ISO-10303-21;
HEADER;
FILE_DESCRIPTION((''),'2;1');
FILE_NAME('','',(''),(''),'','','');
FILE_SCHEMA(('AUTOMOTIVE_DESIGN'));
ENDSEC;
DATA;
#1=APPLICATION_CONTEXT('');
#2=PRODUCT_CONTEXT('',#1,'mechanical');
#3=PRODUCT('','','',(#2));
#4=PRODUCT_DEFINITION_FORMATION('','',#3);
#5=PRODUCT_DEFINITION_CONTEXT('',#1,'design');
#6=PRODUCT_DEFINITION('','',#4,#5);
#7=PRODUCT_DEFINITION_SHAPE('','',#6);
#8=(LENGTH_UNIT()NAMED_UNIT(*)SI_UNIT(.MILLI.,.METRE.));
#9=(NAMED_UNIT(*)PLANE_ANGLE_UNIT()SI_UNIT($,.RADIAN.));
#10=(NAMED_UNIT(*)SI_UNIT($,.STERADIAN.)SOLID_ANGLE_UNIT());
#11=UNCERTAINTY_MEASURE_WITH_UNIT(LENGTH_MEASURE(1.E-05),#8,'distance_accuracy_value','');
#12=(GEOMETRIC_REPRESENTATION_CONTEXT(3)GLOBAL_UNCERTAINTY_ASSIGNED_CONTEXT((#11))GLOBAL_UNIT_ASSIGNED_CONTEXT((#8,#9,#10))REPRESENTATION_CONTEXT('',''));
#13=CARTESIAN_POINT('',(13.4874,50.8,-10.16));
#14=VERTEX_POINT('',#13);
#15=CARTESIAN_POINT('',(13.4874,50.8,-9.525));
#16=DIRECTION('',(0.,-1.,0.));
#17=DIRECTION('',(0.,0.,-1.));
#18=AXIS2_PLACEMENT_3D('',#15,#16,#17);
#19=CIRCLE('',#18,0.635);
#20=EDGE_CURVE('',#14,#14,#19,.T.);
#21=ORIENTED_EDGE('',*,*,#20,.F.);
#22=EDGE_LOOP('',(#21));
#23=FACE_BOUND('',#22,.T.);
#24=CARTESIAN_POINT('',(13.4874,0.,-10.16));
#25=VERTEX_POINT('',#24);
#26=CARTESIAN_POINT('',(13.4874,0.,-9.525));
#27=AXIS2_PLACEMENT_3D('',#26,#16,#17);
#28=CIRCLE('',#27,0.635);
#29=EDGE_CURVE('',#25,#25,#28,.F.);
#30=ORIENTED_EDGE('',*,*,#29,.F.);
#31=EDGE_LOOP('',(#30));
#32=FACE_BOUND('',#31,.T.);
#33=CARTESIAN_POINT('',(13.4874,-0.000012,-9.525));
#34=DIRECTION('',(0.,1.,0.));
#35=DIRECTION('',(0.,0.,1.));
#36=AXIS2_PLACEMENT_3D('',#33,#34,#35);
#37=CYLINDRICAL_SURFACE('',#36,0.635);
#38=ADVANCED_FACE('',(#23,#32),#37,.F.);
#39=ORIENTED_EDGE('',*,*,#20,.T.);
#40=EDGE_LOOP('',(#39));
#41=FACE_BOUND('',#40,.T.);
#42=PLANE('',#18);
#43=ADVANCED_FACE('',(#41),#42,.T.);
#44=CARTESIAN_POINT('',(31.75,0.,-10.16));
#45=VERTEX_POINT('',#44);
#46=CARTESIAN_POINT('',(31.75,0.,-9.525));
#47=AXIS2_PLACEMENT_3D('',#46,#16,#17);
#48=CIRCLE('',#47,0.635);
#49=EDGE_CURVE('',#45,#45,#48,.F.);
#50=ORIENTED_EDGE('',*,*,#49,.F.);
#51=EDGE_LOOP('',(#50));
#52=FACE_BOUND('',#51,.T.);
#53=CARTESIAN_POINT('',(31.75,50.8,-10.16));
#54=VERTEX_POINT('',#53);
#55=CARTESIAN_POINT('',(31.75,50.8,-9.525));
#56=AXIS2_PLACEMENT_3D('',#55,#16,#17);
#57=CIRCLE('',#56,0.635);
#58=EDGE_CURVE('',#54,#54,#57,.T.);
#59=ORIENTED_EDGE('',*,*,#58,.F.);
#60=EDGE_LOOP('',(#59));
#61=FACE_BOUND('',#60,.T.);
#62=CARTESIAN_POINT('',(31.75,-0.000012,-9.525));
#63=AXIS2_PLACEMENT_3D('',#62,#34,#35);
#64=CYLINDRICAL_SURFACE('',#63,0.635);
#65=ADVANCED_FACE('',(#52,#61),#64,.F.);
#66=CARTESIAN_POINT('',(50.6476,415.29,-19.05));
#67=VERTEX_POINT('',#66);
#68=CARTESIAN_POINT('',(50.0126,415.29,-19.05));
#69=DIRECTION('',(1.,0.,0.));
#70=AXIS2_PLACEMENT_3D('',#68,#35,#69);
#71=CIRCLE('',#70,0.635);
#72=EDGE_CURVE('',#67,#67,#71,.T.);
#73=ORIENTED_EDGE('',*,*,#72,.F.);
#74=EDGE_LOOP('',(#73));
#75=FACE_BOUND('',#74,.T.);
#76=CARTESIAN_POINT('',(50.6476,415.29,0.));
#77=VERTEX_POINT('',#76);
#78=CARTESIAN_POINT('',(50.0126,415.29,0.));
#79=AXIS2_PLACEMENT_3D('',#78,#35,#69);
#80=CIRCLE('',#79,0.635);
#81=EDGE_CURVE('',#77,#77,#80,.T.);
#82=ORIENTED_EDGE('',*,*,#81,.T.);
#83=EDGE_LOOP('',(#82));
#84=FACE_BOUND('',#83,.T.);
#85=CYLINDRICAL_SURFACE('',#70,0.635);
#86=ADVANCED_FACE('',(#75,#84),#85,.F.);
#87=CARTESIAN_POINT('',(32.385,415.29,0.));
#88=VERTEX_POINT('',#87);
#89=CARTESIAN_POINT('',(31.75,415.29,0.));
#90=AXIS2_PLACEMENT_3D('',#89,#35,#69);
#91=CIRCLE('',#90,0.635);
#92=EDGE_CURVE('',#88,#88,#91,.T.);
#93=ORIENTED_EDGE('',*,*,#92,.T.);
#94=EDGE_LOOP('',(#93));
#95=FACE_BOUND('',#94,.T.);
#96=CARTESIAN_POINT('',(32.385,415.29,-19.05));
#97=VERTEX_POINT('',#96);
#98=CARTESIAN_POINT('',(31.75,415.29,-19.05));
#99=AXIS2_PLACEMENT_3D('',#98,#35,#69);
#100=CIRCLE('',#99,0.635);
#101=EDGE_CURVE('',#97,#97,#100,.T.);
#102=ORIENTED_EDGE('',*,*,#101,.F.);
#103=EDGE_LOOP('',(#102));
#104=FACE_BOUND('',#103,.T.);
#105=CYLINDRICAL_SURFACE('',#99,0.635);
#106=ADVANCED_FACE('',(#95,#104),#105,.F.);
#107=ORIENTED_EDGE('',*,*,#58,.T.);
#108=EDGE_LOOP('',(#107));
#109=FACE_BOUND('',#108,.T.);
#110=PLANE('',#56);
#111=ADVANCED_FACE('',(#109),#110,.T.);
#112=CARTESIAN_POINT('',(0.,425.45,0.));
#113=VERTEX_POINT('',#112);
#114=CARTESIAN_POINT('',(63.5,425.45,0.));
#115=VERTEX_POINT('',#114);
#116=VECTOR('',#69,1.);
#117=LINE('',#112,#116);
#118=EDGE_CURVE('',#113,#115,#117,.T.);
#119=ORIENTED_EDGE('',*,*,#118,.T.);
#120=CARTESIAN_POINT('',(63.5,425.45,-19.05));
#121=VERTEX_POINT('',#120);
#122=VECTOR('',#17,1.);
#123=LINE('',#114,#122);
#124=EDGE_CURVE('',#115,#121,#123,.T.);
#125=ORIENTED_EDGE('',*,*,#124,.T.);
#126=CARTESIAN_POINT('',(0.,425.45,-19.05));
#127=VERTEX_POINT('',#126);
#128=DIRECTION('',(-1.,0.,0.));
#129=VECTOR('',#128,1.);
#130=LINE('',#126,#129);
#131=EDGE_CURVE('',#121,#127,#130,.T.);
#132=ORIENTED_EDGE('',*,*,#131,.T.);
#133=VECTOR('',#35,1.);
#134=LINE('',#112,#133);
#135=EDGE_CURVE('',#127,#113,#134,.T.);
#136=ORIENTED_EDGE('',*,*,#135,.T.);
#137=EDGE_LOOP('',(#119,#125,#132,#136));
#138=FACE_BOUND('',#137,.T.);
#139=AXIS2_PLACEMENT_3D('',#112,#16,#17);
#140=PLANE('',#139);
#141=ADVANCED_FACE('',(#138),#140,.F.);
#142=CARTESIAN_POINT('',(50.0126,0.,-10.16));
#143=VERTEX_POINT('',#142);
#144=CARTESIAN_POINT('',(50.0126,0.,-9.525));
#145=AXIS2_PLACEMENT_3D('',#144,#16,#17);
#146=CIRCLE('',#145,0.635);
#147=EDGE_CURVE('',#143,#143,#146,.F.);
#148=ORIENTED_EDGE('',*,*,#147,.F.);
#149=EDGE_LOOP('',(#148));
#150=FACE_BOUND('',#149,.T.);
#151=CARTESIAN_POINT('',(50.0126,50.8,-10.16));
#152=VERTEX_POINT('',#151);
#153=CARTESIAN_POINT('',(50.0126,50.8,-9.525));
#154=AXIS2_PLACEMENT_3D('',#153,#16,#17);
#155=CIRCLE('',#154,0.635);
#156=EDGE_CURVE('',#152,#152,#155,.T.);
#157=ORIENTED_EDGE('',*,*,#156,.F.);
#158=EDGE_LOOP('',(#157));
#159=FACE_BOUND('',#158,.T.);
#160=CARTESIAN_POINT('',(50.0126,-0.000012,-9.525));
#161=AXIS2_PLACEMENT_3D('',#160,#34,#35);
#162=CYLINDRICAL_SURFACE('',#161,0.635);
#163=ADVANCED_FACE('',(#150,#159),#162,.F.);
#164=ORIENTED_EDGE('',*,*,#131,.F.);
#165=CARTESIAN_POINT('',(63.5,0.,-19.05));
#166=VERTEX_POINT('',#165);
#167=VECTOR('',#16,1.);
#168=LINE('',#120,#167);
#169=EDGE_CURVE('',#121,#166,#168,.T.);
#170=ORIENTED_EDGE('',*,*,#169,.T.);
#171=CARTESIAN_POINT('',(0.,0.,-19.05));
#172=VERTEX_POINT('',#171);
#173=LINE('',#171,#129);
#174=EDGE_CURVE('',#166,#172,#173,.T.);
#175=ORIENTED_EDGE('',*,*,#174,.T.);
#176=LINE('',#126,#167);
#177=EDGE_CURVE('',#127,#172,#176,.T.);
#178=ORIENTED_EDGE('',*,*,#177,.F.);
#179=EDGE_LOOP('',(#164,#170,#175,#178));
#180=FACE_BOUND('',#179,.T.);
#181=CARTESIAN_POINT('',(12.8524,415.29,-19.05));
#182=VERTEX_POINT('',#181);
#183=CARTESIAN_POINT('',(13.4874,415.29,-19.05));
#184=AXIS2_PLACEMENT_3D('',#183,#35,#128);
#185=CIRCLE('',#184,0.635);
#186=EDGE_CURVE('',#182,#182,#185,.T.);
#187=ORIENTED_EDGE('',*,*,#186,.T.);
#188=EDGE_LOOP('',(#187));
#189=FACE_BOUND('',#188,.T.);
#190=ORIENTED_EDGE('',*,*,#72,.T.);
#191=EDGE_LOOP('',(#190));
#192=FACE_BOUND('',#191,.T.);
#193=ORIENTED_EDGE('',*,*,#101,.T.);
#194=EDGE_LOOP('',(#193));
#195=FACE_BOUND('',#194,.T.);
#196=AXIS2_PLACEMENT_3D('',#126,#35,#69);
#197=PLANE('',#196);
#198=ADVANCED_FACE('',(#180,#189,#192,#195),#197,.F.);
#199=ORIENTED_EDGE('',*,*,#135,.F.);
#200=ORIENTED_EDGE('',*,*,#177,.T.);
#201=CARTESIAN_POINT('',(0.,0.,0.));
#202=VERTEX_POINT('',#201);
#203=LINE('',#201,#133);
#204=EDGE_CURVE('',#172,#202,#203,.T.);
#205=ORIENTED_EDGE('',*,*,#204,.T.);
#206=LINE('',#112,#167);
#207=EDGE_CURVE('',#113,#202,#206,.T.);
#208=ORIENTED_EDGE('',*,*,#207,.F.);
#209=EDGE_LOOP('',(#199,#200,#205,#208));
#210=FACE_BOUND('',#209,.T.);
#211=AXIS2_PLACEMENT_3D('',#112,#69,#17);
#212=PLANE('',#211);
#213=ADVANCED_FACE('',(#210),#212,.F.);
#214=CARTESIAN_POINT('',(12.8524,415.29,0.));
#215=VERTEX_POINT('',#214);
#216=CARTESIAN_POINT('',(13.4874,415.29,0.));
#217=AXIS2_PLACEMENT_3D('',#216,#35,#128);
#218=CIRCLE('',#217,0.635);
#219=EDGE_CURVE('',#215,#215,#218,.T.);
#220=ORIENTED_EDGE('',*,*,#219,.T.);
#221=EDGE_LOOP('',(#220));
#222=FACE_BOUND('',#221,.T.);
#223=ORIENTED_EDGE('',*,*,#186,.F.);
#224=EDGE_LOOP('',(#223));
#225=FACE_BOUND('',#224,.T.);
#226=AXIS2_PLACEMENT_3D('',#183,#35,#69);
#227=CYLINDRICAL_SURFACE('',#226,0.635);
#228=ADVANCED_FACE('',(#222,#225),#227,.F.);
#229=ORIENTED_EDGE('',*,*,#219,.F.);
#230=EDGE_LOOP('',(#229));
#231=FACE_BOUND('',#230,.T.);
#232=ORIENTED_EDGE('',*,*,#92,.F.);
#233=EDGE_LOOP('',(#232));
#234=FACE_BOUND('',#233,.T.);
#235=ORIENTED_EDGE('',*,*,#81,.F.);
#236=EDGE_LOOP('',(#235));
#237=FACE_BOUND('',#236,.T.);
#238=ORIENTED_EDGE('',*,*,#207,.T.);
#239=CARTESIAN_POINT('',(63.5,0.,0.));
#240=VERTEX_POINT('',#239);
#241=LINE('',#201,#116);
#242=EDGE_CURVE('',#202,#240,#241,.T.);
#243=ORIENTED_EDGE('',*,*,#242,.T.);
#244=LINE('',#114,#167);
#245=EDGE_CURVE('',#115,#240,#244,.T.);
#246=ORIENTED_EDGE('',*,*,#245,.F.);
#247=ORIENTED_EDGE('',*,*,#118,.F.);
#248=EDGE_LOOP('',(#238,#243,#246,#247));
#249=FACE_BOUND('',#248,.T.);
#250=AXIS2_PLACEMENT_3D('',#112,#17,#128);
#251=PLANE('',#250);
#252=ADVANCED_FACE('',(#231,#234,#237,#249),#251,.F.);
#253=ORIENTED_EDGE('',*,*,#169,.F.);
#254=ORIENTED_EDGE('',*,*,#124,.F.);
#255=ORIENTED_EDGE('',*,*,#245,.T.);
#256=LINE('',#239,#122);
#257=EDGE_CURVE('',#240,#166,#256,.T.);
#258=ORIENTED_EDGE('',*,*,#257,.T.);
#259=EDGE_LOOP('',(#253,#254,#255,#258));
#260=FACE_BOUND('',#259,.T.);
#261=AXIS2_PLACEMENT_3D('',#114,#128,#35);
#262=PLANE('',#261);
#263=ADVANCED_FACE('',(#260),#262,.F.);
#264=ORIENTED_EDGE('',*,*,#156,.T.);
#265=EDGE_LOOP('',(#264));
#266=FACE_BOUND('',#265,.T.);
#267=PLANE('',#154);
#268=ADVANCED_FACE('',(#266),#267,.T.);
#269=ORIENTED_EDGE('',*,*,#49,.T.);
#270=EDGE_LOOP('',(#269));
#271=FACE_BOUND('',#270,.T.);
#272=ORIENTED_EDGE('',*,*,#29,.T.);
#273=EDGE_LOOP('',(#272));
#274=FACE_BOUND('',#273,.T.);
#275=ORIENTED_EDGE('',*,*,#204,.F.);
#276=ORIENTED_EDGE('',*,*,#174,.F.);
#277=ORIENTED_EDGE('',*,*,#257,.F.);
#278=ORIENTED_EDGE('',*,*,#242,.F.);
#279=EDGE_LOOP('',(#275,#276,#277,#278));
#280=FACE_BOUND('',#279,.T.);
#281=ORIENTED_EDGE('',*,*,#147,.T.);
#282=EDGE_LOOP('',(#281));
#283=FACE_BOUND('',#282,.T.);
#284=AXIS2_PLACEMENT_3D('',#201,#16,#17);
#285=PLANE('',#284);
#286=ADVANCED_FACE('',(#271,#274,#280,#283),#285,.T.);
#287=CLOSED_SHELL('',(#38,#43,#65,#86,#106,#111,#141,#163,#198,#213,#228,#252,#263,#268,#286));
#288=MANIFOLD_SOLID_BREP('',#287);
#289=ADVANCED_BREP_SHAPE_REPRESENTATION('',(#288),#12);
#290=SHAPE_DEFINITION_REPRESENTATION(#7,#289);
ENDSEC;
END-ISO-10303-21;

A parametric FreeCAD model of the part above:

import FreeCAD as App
import Part
import Sketcher

V = App.Vector
Q = App.Units.Quantity


def add_polygon(sketch, points):
    """Adds a closed chain of lines whose ends are joined by coincident constraints."""
    first, n = sketch.GeometryCount, len(points)
    for a, b in zip(points, points[1:] + points[:1]):
        sketch.addGeometry(Part.LineSegment(App.Vector(*a, 0), App.Vector(*b, 0)), False)
    for i in range(n):
        sketch.addConstraint(Sketcher.Constraint("Coincident", first + i, 2, first + (i + 1) % n, 1))

doc = App.newDocument("Part")
body = doc.addObject("PartDesign::Body", "Body")

# Sketch on XZ plane
sketch1 = body.newObject("Sketcher::SketchObject", "Sketch")
sketch1.AttachmentSupport = (doc.getObject("XZ_Plane"), [""])
sketch1.MapMode = "FlatFace"
add_polygon(sketch1, [(0, -19), (0, 0), (64, 0), (64, -19)])  # lines 0-3
sketch1.addConstraint(Sketcher.Constraint("Vertical", 0))
sketch1.addConstraint(Sketcher.Constraint("Horizontal", 1))
sketch1.addConstraint(Sketcher.Constraint("Vertical", 2))
sketch1.addConstraint(Sketcher.Constraint("Horizontal", 3))
sketch1.addConstraint(Sketcher.Constraint("Coincident", 0, 2, -1, 1))
sketch1.addConstraint(Sketcher.Constraint("DistanceX", 1, 1, 1, 2, Q("2.5 in")))
sketch1.addConstraint(Sketcher.Constraint("DistanceY", 0, 1, 0, 2, Q("0.75 in")))
pad1 = body.newObject("PartDesign::Pad", "Pad")
pad1.Profile = sketch1
pad1.Length = Q("16.75 in")
pad1.Reversed = True

# Sketch on XZ plane
sketch2 = body.newObject("Sketcher::SketchObject", "Sketch001")
sketch2.AttachmentSupport = (doc.getObject("XZ_Plane"), [""])
sketch2.MapMode = "FlatFace"
sketch2.addGeometry(Part.Circle(V(13.5, -9.5, 0), V(0, 0, 1), 0.6), False)
sketch2.addGeometry(Part.Circle(V(31.8, -9.5, 0), V(0, 0, 1), 0.6), False)
sketch2.addGeometry(Part.Circle(V(50, -9.5, 0), V(0, 0, 1), 0.6), False)
sketch2.addConstraint(Sketcher.Constraint("Equal", 0, 1))
sketch2.addConstraint(Sketcher.Constraint("Equal", 1, 2))
sketch2.addConstraint(Sketcher.Constraint("Horizontal", 0, 3, 1, 3))
sketch2.addConstraint(Sketcher.Constraint("Horizontal", 1, 3, 2, 3))
sketch2.addConstraint(Sketcher.Constraint("Diameter", 0, Q("0.05 in")))
sketch2.addConstraint(Sketcher.Constraint("DistanceX", -1, 1, 1, 3, Q("1.25 in")))
sketch2.addConstraint(Sketcher.Constraint("DistanceX", -1, 1, 0, 3, Q("0.531 in")))
sketch2.addConstraint(Sketcher.Constraint("DistanceY", 0, 3, -1, 1, Q("0.375 in")))
sketch2.addConstraint(Sketcher.Constraint("DistanceX", -1, 1, 2, 3, Q("1.969 in")))
pocket1 = body.newObject("PartDesign::Pocket", "Pocket")
pocket1.Profile = sketch2
pocket1.Type = "TwoLengths"
pocket1.Length = 431.584318
pocket1.Length2 = Q("2 in")
pocket1.Reversed = True

# Sketch on XY plane
sketch3 = body.newObject("Sketcher::SketchObject", "Sketch002")
sketch3.AttachmentSupport = (doc.getObject("XY_Plane"), [""])
sketch3.MapMode = "FlatFace"
sketch3.addGeometry(Part.Circle(V(31.8, 415.3, 0), V(0, 0, 1), 0.6), False)
sketch3.addGeometry(Part.Circle(V(50, 415.3, 0), V(0, 0, 1), 0.6), False)
sketch3.addGeometry(Part.Circle(V(13.5, 415.3, 0), V(0, 0, 1), 0.6), False)
sketch3.addConstraint(Sketcher.Constraint("Equal", 0, 1))
sketch3.addConstraint(Sketcher.Constraint("Equal", 1, 2))
sketch3.addConstraint(Sketcher.Constraint("Horizontal", 0, 3, 1, 3))
sketch3.addConstraint(Sketcher.Constraint("Horizontal", 1, 3, 2, 3))
sketch3.addConstraint(Sketcher.Constraint("Diameter", 0, Q("0.05 in")))
sketch3.addConstraint(Sketcher.Constraint("DistanceX", -1, 1, 0, 3, Q("1.25 in")))
sketch3.addConstraint(Sketcher.Constraint("DistanceY", -1, 1, 0, 3, Q("16.35 in")))
sketch3.addConstraint(Sketcher.Constraint("DistanceX", -1, 1, 1, 3, Q("1.969 in")))
sketch3.addConstraint(Sketcher.Constraint("DistanceX", -1, 1, 2, 3, Q("0.531 in")))
pocket2 = body.newObject("PartDesign::Pocket", "Pocket001")
pocket2.Profile = sketch3
pocket2.Type = "ThroughAll"

doc.recompute()
